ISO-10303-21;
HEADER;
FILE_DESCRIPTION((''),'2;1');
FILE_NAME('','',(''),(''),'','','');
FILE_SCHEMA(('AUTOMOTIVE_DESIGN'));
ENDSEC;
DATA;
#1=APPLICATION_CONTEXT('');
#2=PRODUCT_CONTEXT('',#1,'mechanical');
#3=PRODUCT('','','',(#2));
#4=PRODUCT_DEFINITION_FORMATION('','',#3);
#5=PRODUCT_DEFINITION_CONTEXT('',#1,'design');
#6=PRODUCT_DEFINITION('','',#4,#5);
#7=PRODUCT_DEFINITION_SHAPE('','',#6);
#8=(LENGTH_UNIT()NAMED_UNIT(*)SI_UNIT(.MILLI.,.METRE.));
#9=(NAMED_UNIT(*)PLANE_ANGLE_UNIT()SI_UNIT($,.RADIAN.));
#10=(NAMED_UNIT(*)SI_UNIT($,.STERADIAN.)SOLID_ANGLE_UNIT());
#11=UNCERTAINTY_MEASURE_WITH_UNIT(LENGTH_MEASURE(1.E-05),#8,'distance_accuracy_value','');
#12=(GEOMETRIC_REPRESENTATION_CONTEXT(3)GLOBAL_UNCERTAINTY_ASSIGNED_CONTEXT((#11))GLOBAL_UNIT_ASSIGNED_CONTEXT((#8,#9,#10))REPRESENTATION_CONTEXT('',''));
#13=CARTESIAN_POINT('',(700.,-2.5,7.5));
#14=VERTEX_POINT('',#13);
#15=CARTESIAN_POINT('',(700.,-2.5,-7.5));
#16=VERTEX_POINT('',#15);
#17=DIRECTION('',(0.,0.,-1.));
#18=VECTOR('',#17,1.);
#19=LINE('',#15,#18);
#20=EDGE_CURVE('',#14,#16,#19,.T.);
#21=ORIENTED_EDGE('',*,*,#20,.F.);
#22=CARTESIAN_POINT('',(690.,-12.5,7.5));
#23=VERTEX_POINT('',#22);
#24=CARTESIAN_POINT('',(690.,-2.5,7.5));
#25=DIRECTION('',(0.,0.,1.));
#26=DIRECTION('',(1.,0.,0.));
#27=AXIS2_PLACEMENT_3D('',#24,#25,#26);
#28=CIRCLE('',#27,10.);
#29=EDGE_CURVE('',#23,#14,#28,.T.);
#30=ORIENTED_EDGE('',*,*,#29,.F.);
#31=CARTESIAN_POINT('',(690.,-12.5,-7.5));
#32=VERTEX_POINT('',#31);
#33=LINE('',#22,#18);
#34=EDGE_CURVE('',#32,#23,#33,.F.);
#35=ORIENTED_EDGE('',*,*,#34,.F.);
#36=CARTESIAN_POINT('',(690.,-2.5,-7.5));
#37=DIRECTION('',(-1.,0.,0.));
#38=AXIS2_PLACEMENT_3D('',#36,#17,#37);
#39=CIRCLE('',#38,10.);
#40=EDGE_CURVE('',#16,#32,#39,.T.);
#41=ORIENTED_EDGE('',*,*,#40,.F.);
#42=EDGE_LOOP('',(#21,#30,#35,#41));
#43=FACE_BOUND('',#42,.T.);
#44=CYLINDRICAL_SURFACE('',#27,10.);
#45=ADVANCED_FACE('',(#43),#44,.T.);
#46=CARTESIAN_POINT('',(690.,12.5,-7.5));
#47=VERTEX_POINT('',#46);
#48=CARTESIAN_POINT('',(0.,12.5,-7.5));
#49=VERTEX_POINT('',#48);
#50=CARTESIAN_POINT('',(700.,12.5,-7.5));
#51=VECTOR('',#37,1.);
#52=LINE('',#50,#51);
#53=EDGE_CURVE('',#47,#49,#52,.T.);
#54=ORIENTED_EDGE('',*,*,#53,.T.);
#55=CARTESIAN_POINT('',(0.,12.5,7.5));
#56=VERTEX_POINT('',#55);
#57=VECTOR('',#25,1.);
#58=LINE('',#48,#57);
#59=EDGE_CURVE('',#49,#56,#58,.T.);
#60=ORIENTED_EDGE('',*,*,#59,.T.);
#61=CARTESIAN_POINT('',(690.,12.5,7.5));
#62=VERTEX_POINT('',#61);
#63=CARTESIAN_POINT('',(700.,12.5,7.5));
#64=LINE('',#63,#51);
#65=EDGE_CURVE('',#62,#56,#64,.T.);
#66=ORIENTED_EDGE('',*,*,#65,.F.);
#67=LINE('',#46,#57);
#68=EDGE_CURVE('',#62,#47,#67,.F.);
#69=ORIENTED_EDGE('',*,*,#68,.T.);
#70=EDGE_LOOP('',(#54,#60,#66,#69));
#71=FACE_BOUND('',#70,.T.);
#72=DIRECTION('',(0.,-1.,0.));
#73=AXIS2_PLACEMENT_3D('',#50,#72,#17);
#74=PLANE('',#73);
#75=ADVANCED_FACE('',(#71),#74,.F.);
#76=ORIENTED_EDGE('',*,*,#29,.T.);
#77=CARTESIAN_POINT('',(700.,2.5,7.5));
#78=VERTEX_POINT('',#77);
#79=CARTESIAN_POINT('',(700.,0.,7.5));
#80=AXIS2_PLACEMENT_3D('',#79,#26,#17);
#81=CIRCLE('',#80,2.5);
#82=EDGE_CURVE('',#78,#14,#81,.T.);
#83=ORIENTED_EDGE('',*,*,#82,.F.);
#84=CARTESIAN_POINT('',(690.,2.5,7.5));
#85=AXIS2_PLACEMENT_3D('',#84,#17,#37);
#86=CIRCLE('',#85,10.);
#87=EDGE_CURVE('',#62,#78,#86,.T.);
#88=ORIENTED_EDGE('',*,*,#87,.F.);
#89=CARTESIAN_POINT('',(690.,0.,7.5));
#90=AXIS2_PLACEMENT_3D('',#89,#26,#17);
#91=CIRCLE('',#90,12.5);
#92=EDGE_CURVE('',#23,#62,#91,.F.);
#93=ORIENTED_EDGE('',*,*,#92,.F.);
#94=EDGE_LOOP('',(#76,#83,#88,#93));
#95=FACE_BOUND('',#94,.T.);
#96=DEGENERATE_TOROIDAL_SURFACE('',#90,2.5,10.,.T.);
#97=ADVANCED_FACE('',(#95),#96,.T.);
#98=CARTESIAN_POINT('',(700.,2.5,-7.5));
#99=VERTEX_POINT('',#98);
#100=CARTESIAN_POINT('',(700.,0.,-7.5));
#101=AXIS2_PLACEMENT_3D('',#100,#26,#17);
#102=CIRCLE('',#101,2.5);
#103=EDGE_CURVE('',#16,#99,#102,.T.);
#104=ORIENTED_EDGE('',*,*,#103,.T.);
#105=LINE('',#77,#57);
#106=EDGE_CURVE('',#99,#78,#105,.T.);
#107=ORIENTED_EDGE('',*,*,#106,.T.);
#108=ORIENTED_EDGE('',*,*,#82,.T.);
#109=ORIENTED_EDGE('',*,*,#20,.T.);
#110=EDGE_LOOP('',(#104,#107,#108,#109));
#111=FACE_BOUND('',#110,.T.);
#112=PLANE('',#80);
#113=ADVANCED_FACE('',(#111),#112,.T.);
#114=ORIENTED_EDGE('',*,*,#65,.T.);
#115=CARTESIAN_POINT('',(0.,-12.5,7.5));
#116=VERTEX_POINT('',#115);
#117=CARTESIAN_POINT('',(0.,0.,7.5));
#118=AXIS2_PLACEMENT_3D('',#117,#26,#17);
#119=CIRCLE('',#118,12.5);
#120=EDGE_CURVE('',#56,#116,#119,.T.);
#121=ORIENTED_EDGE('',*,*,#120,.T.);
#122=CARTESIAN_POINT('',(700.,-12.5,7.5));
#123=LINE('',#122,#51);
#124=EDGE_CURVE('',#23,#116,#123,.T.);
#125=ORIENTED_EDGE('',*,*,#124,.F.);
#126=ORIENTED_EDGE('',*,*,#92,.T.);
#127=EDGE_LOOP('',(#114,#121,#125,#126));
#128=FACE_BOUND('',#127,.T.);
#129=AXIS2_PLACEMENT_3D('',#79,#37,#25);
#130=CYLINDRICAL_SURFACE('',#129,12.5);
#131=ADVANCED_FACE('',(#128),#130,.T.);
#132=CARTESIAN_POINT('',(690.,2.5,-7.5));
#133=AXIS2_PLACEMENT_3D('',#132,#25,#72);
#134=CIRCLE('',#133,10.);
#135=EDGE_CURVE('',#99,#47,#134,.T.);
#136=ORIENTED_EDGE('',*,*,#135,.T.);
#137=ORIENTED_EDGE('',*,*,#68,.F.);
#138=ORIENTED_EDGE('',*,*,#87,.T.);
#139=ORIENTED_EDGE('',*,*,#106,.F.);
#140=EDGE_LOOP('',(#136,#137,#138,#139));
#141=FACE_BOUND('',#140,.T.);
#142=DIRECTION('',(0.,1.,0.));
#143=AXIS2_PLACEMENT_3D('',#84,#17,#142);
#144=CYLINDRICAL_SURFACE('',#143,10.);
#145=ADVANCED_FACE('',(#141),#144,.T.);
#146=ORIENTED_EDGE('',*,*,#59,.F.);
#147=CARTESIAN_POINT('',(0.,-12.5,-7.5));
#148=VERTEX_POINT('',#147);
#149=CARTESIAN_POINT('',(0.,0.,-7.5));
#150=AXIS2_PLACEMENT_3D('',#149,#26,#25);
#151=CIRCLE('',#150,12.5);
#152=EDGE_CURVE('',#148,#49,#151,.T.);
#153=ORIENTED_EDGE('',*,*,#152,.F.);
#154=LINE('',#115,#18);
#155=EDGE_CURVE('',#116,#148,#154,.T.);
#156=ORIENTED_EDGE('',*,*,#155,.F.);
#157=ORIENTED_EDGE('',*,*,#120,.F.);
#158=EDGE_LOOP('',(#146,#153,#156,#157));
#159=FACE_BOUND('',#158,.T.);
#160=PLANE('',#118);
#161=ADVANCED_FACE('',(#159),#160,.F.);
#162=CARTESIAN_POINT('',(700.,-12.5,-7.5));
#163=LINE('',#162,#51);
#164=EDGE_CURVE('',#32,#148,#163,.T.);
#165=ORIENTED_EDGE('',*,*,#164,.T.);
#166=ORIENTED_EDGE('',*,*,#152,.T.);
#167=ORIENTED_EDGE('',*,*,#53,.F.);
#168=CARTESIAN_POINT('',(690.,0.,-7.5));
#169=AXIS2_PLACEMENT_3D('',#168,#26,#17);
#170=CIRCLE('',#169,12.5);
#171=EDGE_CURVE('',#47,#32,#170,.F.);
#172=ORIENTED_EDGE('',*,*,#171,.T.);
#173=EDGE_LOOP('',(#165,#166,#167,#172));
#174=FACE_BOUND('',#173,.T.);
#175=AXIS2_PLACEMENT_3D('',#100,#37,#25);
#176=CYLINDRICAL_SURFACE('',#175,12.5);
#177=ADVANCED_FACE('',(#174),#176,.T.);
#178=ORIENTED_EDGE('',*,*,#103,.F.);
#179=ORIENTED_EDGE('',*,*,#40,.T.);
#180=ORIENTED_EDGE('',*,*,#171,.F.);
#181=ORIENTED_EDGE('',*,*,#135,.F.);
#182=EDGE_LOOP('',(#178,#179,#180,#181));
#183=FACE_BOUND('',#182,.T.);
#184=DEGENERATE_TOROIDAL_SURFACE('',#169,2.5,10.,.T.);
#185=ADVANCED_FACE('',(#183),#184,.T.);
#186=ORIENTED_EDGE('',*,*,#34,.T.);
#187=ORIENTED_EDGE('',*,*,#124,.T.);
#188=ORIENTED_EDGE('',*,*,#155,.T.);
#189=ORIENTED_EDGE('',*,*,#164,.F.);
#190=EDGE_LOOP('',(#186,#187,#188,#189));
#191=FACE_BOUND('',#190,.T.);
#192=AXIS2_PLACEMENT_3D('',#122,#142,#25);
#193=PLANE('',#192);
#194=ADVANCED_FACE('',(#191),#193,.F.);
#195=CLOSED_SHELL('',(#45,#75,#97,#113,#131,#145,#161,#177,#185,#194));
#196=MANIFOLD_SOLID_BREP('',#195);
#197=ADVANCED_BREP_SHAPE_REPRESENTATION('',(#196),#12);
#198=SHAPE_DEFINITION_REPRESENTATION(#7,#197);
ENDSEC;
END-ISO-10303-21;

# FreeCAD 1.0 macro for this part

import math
import FreeCAD as App
import Part
import Sketcher

V = App.Vector


def edges_at(feature, points):
    """Names of the edges that pass closest to the given points."""
    edges = feature.Shape.Edges
    near = lambda p: min(range(len(edges)), key=lambda i: edges[i].distToShape(Part.Vertex(*p))[0])
    return sorted({f"Edge{near(p) + 1}" for p in points})

doc = App.newDocument("Part")
body = doc.addObject("PartDesign::Body", "Body")

sketch1 = doc.addObject("Sketcher::SketchObject", "Sketch")
body.addObject(sketch1)
sketch1.AttachmentSupport = (doc.YZ_Plane, [""])
sketch1.MapMode = "FlatFace"
sketch1.addGeometry(Part.LineSegment(V(12, -8, 0), V(12, 8, 0)), False)
sketch1.addGeometry(Part.ArcOfCircle(Part.Circle(V(0, 8, 0), V(0, 0, 1), 12), math.radians(0), math.radians(180)), False)
sketch1.addGeometry(Part.LineSegment(V(-12, 8, 0), V(-12, -8, 0)), False)
sketch1.addGeometry(Part.ArcOfCircle(Part.Circle(V(0, -8, 0), V(0, 0, 1), 12), math.radians(180), math.radians(360)), False)
sketch1.addConstraint(Sketcher.Constraint("Tangent", 0, 2, 1, 1))
sketch1.addConstraint(Sketcher.Constraint("Tangent", 1, 2, 2, 1))
sketch1.addConstraint(Sketcher.Constraint("Tangent", 2, 2, 3, 1))
sketch1.addConstraint(Sketcher.Constraint("Tangent", 3, 2, 0, 1))
sketch1.addConstraint(Sketcher.Constraint("Vertical", 0))
sketch1.addConstraint(Sketcher.Constraint("Vertical", 2))
sketch1.addConstraint(Sketcher.Constraint("Symmetric", 1, 3, 3, 3, -1, 1))
sketch1.addConstraint(Sketcher.Constraint("Radius", 1, 12.5))
sketch1.addConstraint(Sketcher.Constraint("DistanceY", 0, 1, 0, 2, 15.0))
pad1 = doc.addObject("PartDesign::Pad", "Pad")
body.addObject(pad1)
pad1.Profile = sketch1
pad1.Length = 700
doc.recompute()

fillet = doc.addObject("PartDesign::Fillet", "Fillet")
body.addObject(fillet)
fillet.Base = (pad1, edges_at(pad1, [
    (700, 0, -20),
    (700, 12.5, 0),
    (700, 0, 20),
    (700, -12.5, 0),
]))
fillet.Radius = 10

doc.recompute()
